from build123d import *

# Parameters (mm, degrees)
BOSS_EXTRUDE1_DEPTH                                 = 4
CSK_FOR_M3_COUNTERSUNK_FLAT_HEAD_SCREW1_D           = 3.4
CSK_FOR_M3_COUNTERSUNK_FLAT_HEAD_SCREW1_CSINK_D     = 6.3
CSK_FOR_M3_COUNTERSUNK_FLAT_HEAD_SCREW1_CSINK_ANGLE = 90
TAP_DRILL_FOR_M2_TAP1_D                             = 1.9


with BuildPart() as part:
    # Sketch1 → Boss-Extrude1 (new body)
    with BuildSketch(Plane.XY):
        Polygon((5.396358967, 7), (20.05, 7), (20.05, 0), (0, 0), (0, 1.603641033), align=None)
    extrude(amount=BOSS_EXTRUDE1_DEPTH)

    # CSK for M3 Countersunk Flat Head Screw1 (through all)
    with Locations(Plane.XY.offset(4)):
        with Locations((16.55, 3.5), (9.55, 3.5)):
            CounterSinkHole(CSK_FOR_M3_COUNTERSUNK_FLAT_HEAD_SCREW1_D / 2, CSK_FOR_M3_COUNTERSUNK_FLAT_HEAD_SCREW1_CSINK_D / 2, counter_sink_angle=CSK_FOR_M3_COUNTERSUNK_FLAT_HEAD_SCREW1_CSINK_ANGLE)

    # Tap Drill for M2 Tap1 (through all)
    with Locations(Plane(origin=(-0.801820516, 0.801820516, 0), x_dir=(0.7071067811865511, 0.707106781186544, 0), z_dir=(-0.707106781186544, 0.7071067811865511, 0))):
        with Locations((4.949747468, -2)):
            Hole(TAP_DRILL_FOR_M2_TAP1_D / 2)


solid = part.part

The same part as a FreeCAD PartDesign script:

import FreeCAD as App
import Part
import Sketcher

V = App.Vector
Q = App.Units.Quantity


def add_polygon(sketch, points):
    """Adds a closed chain of lines whose ends are joined by coincident constraints."""
    first, n = sketch.GeometryCount, len(points)
    for a, b in zip(points, points[1:] + points[:1]):
        sketch.addGeometry(Part.LineSegment(App.Vector(*a, 0), App.Vector(*b, 0)), False)
    for i in range(n):
        sketch.addConstraint(Sketcher.Constraint("Coincident", first + i, 2, first + (i + 1) % n, 1))

doc = App.newDocument("Part")
body = doc.addObject("PartDesign::Body", "Body")

# Sketch on XY plane
sketch1 = body.newObject("Sketcher::SketchObject", "Sketch")
sketch1.AttachmentSupport = (doc.getObject("XY_Plane"), [""])
sketch1.MapMode = "FlatFace"
add_polygon(sketch1, [(20.1, 7), (5.4, 7), (0, 1.6), (0, 0), (20.1, 0)])  # lines 0-4
sketch1.addConstraint(Sketcher.Constraint("Horizontal", 0))
sketch1.addConstraint(Sketcher.Constraint("Vertical", 2))
sketch1.addConstraint(Sketcher.Constraint("Horizontal", 3))
sketch1.addConstraint(Sketcher.Constraint("Vertical", 4))
sketch1.addConstraint(Sketcher.Constraint("Coincident", 2, 2, -1, 1))
sketch1.addConstraint(Sketcher.Constraint("DistanceY", 4, 1, 4, 2, 7.0))
sketch1.addConstraint(Sketcher.Constraint("Angle", 1, Q("-135 deg")))
sketch1.addConstraint(Sketcher.Constraint("DistanceX", 3, 1, 3, 2, 20.05))
sketch1.addConstraint(Sketcher.Constraint("DistanceX", 0, 2, 0, 1, 14.653641))
pad1 = body.newObject("PartDesign::Pad", "Pad")
pad1.Profile = sketch1
pad1.Length = 4

# Sketch on XY plane
sketch2 = body.newObject("Sketcher::SketchObject", "Sketch001")
sketch2.AttachmentSupport = (doc.getObject("XY_Plane"), [""])
sketch2.MapMode = "FlatFace"
sketch2.AttachmentOffset = App.Placement(V(0, 0, 4), App.Rotation())
sketch2.addGeometry(Part.Circle(V(16.6, 3.5, 0), V(0, 0, 1), 1.7), False)
sketch2.addGeometry(Part.Circle(V(9.6, 3.5, 0), V(0, 0, 1), 1.7), False)
sketch2.addConstraint(Sketcher.Constraint("Equal", 0, 1))
sketch2.addConstraint(Sketcher.Constraint("Horizontal", 0, 3, 1, 3))
sketch2.addConstraint(Sketcher.Constraint("Diameter", 0, 3.4))
sketch2.addConstraint(Sketcher.Constraint("DistanceX", 1, 3, 0, 3, 7.0))
sketch2.addConstraint(Sketcher.Constraint("DistanceY", -1, 1, 0, 3, 3.5))
sketch2.addConstraint(Sketcher.Constraint("DistanceX", -1, 1, 0, 3, 16.55))
doc.recompute()
hole = body.newObject("PartDesign::Hole", "Hole")
hole.Profile = sketch2
hole.ThreadType = "None"
hole.Diameter = 3.4
hole.DepthType = "ThroughAll"
hole.HoleCutType = "Countersink"
hole.HoleCutDiameter = 6.3
hole.HoleCutCountersinkAngle = 90

# Sketch on an angled plane
sketch3 = body.newObject("Sketcher::SketchObject", "Sketch002")
sketch3.Placement = App.Placement(V(-0.801821, 0.801821, 0), App.Rotation(V(0.707106781, 0.707106781, 0), V(0, 0, -0.999999999), V(-0.707106781, 0.707106781, 0), "ZXY"))
sketch3.addGeometry(Part.Circle(V(4.9, -2, 0), V(0, 0, 1), 0.9), False)
sketch3.addConstraint(Sketcher.Constraint("Diameter", 0, 1.9))
sketch3.addConstraint(Sketcher.Constraint("DistanceY", 0, 3, -1, 1, 2.0))
sketch3.addConstraint(Sketcher.Constraint("DistanceX", -1, 1, 0, 3, 4.949747))
doc.recompute()
hole2 = body.newObject("PartDesign::Hole", "Hole001")
hole2.Profile = sketch3
hole2.ThreadType = "None"
hole2.Diameter = 1.9
hole2.DepthType = "ThroughAll"

doc.recompute()
